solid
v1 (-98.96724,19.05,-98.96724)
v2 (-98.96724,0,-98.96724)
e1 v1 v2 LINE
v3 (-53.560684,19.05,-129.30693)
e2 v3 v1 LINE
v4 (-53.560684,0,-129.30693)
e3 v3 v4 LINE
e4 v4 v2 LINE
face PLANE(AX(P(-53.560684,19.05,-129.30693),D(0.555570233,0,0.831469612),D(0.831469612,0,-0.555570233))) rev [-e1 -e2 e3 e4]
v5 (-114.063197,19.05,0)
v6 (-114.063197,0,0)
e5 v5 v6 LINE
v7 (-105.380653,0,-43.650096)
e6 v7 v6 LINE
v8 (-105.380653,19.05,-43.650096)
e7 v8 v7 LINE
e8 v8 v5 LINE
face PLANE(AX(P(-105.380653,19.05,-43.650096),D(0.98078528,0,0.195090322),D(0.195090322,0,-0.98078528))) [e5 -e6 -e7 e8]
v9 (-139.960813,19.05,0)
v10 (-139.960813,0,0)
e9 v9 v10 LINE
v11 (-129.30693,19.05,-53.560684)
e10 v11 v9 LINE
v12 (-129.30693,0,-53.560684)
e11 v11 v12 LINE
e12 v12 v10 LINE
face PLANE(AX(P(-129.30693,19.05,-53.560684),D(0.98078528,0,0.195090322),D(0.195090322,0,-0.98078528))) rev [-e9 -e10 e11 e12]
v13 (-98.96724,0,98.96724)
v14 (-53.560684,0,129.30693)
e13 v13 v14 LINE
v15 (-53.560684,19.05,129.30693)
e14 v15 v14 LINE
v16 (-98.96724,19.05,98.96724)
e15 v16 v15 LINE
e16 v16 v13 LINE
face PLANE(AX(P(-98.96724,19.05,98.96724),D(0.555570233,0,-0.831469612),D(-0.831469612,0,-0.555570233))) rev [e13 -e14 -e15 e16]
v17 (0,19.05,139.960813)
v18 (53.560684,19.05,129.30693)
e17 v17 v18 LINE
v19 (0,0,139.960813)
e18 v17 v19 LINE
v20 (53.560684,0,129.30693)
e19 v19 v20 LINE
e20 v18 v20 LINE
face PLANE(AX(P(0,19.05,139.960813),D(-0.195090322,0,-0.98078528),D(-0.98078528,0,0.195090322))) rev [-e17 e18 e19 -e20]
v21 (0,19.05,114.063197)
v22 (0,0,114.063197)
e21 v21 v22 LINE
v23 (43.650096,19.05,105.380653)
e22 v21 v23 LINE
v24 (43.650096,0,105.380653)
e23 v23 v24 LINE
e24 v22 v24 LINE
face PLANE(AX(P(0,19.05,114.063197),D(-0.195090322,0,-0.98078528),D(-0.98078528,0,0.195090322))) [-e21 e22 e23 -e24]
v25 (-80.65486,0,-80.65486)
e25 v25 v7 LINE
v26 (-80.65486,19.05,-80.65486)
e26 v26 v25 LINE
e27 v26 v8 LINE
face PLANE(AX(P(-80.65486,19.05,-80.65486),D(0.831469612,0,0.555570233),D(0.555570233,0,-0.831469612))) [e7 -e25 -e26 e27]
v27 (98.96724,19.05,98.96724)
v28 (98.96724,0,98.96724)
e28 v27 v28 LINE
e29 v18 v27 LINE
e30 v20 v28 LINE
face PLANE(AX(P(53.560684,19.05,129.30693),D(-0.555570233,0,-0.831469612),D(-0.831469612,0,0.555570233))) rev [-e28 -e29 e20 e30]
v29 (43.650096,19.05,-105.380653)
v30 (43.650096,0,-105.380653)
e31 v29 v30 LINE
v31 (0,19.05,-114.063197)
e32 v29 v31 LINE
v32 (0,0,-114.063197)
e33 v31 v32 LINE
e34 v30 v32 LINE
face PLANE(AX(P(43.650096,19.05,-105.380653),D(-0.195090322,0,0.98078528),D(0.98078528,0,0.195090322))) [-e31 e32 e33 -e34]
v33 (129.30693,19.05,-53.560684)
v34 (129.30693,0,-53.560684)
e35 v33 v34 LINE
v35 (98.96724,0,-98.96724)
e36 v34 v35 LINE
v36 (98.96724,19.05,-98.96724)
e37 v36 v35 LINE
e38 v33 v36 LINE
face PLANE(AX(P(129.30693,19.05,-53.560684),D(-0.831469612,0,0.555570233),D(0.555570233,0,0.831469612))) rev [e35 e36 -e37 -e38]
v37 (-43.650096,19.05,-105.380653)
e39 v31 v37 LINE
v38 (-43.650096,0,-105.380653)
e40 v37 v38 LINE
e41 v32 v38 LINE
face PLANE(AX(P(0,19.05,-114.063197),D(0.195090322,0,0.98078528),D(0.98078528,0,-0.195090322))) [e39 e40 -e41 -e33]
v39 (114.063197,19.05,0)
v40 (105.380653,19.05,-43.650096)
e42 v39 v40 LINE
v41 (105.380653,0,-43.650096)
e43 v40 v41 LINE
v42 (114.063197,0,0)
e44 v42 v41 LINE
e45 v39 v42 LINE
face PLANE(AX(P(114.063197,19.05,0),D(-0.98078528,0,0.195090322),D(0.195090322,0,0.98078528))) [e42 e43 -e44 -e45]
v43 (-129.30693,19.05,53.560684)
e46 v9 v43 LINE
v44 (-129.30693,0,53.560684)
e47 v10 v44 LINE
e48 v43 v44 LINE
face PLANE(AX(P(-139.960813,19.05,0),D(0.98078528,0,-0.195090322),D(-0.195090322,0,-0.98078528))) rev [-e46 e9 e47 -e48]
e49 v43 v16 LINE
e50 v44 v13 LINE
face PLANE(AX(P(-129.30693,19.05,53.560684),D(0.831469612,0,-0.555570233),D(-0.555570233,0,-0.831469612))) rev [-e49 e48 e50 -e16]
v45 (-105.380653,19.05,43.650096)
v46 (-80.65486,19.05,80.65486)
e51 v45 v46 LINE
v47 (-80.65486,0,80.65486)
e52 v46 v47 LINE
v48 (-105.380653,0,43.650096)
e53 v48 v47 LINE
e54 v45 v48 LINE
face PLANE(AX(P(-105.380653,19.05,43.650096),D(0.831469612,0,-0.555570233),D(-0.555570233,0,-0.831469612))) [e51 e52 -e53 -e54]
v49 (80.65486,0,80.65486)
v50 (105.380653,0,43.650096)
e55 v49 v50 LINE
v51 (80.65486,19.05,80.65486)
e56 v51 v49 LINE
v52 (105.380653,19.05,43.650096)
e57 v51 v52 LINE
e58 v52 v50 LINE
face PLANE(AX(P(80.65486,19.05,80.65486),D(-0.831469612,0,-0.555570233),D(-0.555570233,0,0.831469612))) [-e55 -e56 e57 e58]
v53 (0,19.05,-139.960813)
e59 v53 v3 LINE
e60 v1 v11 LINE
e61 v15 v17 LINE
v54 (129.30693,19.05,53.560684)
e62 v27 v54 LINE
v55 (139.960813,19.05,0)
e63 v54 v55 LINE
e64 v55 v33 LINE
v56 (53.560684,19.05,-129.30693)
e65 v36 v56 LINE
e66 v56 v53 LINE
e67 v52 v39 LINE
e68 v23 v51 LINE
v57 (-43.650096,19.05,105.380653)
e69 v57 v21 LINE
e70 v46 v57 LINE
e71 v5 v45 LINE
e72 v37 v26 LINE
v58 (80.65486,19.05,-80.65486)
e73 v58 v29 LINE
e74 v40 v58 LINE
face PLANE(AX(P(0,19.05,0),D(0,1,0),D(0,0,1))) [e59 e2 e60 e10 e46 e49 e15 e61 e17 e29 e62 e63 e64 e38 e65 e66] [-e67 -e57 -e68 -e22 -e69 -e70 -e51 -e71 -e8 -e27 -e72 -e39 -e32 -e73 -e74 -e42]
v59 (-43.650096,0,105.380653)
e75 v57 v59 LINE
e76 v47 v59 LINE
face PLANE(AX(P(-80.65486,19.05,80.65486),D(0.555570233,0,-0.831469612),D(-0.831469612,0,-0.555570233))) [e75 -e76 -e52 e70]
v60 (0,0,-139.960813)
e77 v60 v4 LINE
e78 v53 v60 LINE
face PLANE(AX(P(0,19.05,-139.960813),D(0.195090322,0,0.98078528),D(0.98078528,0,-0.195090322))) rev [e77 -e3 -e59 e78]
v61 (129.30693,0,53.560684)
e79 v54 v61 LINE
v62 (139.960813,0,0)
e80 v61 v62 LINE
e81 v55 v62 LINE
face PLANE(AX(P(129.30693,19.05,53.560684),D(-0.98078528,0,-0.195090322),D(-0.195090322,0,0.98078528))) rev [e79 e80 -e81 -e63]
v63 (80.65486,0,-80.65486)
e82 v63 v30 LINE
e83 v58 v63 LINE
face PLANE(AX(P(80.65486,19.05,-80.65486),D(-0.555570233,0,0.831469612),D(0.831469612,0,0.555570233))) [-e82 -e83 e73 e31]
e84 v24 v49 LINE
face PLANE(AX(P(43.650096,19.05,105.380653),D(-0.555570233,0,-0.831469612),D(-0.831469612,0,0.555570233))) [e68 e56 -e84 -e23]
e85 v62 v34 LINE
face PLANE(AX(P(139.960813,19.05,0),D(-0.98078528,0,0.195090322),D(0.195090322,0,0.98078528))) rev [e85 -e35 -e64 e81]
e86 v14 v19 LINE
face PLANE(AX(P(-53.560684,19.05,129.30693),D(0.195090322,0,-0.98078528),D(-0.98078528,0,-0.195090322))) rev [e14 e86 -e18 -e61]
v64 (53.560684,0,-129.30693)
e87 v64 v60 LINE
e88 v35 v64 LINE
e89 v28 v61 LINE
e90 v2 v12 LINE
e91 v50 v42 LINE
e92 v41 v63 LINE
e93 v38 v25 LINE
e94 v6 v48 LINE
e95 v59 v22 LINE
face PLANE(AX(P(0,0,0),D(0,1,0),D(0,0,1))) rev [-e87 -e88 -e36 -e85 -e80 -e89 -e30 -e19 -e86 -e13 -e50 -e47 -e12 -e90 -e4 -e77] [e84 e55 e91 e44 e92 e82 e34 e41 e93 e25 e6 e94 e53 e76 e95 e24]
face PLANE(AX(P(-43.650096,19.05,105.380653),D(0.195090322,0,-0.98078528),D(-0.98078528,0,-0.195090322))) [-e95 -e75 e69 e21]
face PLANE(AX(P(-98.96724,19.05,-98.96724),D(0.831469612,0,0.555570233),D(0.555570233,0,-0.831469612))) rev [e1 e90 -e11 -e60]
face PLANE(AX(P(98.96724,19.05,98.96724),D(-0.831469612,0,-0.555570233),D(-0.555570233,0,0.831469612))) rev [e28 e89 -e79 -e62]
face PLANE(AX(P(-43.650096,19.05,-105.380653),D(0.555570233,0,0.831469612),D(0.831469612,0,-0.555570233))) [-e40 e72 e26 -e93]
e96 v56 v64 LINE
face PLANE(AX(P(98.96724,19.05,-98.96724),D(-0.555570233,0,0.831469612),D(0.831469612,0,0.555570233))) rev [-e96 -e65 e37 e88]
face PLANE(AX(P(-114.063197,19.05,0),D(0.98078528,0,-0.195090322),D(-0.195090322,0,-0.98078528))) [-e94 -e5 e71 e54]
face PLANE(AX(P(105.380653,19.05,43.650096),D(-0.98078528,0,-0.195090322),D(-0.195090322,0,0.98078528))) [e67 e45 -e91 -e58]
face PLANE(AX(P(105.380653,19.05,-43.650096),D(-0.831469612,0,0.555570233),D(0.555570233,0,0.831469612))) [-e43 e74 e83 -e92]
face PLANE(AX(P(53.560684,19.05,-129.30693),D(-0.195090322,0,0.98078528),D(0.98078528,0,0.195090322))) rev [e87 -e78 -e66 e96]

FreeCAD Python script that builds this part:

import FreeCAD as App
import Part
import Sketcher

V = App.Vector
Q = App.Units.Quantity

doc = App.newDocument("Part")
body = doc.addObject("PartDesign::Body", "Body")

# Sketch on XZ plane
sketch1 = body.newObject("Sketcher::SketchObject", "Sketch")
sketch1.AttachmentSupport = (doc.getObject("XZ_Plane"), [""])
sketch1.MapMode = "FlatFace"
sketch1.addGeometry([
    Part.LineSegment(V(140, 0, 0), V(129, -54, 0)),  # 0
    Part.LineSegment(V(129, -54, 0), V(99, -99, 0)),  # 1
    Part.LineSegment(V(99, -99, 0), V(54, -129, 0)),  # 2
    Part.LineSegment(V(54, -129, 0), V(0, -140, 0)),  # 3
    Part.LineSegment(V(0, -140, 0), V(-54, -129, 0)),  # 4
    Part.LineSegment(V(-54, -129, 0), V(-99, -99, 0)),  # 5
    Part.LineSegment(V(-99, -99, 0), V(-129, -54, 0)),  # 6
    Part.LineSegment(V(-129, -54, 0), V(-140, 0, 0)),  # 7
    Part.LineSegment(V(-140, 0, 0), V(-129, 54, 0)),  # 8
    Part.LineSegment(V(-129, 54, 0), V(-99, 99, 0)),  # 9
    Part.LineSegment(V(-99, 99, 0), V(-54, 129, 0)),  # 10
    Part.LineSegment(V(-54, 129, 0), V(0, 140, 0)),  # 11
    Part.LineSegment(V(0, 140, 0), V(54, 129, 0)),  # 12
    Part.LineSegment(V(54, 129, 0), V(99, 99, 0)),  # 13
    Part.LineSegment(V(99, 99, 0), V(129, 54, 0)),  # 14
    Part.LineSegment(V(129, 54, 0), V(140, 0, 0)),  # 15
    Part.LineSegment(V(105, -44, 0), V(114, 0, 0)),  # 16
    Part.LineSegment(V(114, 0, 0), V(105, 44, 0)),  # 17
    Part.LineSegment(V(105, 44, 0), V(81, 81, 0)),  # 18
    Part.LineSegment(V(81, 81, 0), V(44, 105, 0)),  # 19
    Part.LineSegment(V(44, 105, 0), V(0, 114, 0)),  # 20
    Part.LineSegment(V(0, 114, 0), V(-44, 105, 0)),  # 21
    Part.LineSegment(V(-44, 105, 0), V(-81, 81, 0)),  # 22
    Part.LineSegment(V(-81, 81, 0), V(-105, 44, 0)),  # 23
    Part.LineSegment(V(-105, 44, 0), V(-114, 0, 0)),  # 24
    Part.LineSegment(V(-114, 0, 0), V(-105, -44, 0)),  # 25
    Part.LineSegment(V(-105, -44, 0), V(-81, -81, 0)),  # 26
    Part.LineSegment(V(-81, -81, 0), V(-44, -105, 0)),  # 27
    Part.LineSegment(V(-44, -105, 0), V(0, -114, 0)),  # 28
    Part.LineSegment(V(0, -114, 0), V(44, -105, 0)),  # 29
    Part.LineSegment(V(44, -105, 0), V(81, -81, 0)),  # 30
    Part.LineSegment(V(81, -81, 0), V(105, -44, 0)),  # 31
], False)
sketch1.addConstraint([
    Sketcher.Constraint("Coincident", 0, 2, 1, 1),
    Sketcher.Constraint("Coincident", 1, 2, 2, 1),
    Sketcher.Constraint("Coincident", 2, 2, 3, 1),
    Sketcher.Constraint("Coincident", 3, 2, 4, 1),
    Sketcher.Constraint("Coincident", 4, 2, 5, 1),
    Sketcher.Constraint("Coincident", 5, 2, 6, 1),
    Sketcher.Constraint("Coincident", 6, 2, 7, 1),
    Sketcher.Constraint("Coincident", 7, 2, 8, 1),
    Sketcher.Constraint("Coincident", 8, 2, 9, 1),
    Sketcher.Constraint("Coincident", 9, 2, 10, 1),
    Sketcher.Constraint("Coincident", 10, 2, 11, 1),
    Sketcher.Constraint("Coincident", 11, 2, 12, 1),
    Sketcher.Constraint("Coincident", 12, 2, 13, 1),
    Sketcher.Constraint("Coincident", 13, 2, 14, 1),
    Sketcher.Constraint("Coincident", 14, 2, 15, 1),
    Sketcher.Constraint("Coincident", 15, 2, 0, 1),
    Sketcher.Constraint("Coincident", 16, 2, 17, 1),
    Sketcher.Constraint("Coincident", 17, 2, 18, 1),
    Sketcher.Constraint("Coincident", 18, 2, 19, 1),
    Sketcher.Constraint("Coincident", 19, 2, 20, 1),
    Sketcher.Constraint("Coincident", 20, 2, 21, 1),
    Sketcher.Constraint("Coincident", 21, 2, 22, 1),
    Sketcher.Constraint("Coincident", 22, 2, 23, 1),
    Sketcher.Constraint("Coincident", 23, 2, 24, 1),
    Sketcher.Constraint("Coincident", 24, 2, 25, 1),
    Sketcher.Constraint("Coincident", 25, 2, 26, 1),
    Sketcher.Constraint("Coincident", 26, 2, 27, 1),
    Sketcher.Constraint("Coincident", 27, 2, 28, 1),
    Sketcher.Constraint("Coincident", 28, 2, 29, 1),
    Sketcher.Constraint("Coincident", 29, 2, 30, 1),
    Sketcher.Constraint("Coincident", 30, 2, 31, 1),
    Sketcher.Constraint("Coincident", 31, 2, 16, 1),
    Sketcher.Constraint("Symmetric", 0, 2, 8, 2, -1, 1),
    Sketcher.Constraint("Symmetric", 1, 2, 9, 2, -1, 1),
    Sketcher.Constraint("Symmetric", 2, 2, 10, 2, -1, 1),
    Sketcher.Constraint("Symmetric", 3, 2, 11, 2, -1, 1),
    Sketcher.Constraint("Symmetric", 4, 2, 12, 2, -1, 1),
    Sketcher.Constraint("Symmetric", 5, 2, 13, 2, -1, 1),
    Sketcher.Constraint("Symmetric", 6, 2, 14, 2, -1, 1),
    Sketcher.Constraint("Symmetric", 7, 2, 15, 2, -1, 1),
    Sketcher.Constraint("Symmetric", 16, 2, 24, 2, -1, 1),
    Sketcher.Constraint("Symmetric", 17, 2, 25, 2, -1, 1),
    Sketcher.Constraint("Symmetric", 18, 2, 26, 2, -1, 1),
    Sketcher.Constraint("Symmetric", 19, 2, 27, 2, -1, 1),
    Sketcher.Constraint("Symmetric", 20, 2, 28, 2, -1, 1),
    Sketcher.Constraint("Symmetric", 21, 2, 29, 2, -1, 1),
    Sketcher.Constraint("Symmetric", 22, 2, 30, 2, -1, 1),
    Sketcher.Constraint("Symmetric", 23, 2, 31, 2, -1, 1),
    Sketcher.Constraint("Symmetric", 2, 2, 4, 2, -2),
    Sketcher.Constraint("Symmetric", 1, 2, 5, 2, -2),
    Sketcher.Constraint("Symmetric", 0, 2, 6, 2, -2),
    Sketcher.Constraint("Symmetric", 19, 2, 21, 2, -2),
    Sketcher.Constraint("Symmetric", 18, 2, 22, 2, -2),
    Sketcher.Constraint("Symmetric", 17, 2, 23, 2, -2),
    Sketcher.Constraint("PointOnObject", 3, 2, -2),
    Sketcher.Constraint("PointOnObject", 7, 2, -1),
    Sketcher.Constraint("PointOnObject", 16, 2, -1),
    Sketcher.Constraint("PointOnObject", 20, 2, -2),
    Sketcher.Constraint("Perpendicular", 0, 4),
    Sketcher.Constraint("Perpendicular", 1, 5),
    Sketcher.Constraint("Perpendicular", 12, 16),
    Sketcher.Constraint("Parallel", 14, 18),
    Sketcher.Constraint("Parallel", 13, 19),
    Sketcher.Constraint("Perpendicular", 16, 20),
    Sketcher.Constraint("Equal", 0, 1),
    Sketcher.Constraint("Equal", 1, 2),
    Sketcher.Constraint("Equal", 2, 3),
    Sketcher.Constraint("Equal", 17, 18),
    Sketcher.Constraint("Equal", 18, 19),
    Sketcher.Constraint("Equal", 19, 20),
    Sketcher.Constraint("Distance", 0, Q("2.15 in")),
    Sketcher.Constraint("Angle", 0, Q("-101.25 deg")),
    Sketcher.Constraint("Angle", 1, Q("-123.75 deg")),
    Sketcher.Constraint("DistanceX", 12, 2, 18, 2, Q("1.0666998 in")),
])
pad1 = body.newObject("PartDesign::Pad", "Pad")
pad1.Profile = sketch1
pad1.Length = Q("0.75 in")
pad1.Reversed = True

doc.recompute()
